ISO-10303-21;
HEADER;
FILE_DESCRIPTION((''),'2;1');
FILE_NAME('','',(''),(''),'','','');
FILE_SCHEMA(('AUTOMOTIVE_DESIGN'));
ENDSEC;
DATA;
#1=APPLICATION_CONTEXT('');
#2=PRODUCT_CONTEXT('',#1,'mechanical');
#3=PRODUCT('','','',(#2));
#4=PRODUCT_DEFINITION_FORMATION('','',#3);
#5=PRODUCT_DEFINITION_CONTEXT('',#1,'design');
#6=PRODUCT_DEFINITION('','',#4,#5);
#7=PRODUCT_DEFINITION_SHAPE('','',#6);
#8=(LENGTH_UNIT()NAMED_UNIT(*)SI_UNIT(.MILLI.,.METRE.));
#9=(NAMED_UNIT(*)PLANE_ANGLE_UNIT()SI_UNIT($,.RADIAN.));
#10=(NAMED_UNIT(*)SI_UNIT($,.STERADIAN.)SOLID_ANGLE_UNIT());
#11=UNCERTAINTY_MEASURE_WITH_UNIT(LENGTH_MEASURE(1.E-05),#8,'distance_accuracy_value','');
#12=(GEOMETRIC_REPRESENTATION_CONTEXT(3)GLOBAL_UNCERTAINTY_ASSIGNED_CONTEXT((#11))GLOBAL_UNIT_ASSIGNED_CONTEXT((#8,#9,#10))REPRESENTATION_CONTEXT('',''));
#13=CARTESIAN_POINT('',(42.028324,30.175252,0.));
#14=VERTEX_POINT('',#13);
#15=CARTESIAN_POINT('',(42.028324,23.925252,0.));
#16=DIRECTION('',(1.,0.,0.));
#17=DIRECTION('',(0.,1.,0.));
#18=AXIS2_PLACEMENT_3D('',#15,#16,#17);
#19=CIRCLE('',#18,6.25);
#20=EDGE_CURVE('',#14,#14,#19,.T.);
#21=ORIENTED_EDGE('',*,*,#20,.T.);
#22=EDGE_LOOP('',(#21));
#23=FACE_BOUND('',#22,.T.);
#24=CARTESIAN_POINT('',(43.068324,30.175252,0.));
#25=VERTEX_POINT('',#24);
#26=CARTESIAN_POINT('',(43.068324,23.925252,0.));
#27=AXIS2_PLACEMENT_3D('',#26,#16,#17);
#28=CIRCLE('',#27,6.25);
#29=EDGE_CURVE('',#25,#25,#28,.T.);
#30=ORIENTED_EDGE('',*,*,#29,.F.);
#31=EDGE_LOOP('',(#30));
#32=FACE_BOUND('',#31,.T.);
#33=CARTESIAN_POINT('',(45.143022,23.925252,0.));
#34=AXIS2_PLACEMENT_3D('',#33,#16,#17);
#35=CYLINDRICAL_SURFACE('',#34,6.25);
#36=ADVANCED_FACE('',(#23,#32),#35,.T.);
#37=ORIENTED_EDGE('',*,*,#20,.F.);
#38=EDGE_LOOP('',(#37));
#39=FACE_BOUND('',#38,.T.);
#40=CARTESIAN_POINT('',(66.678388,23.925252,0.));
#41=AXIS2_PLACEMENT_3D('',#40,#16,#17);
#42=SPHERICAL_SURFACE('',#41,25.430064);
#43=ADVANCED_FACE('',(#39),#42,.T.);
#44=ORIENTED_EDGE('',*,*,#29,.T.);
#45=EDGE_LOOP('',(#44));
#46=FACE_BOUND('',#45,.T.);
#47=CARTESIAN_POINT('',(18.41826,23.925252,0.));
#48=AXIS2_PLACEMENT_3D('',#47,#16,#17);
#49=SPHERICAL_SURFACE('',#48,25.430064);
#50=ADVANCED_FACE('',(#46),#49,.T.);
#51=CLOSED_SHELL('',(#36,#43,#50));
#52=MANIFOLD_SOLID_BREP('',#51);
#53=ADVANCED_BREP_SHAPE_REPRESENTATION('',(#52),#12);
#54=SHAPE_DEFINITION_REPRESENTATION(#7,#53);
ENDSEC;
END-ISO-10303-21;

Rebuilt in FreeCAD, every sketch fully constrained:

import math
import FreeCAD as App
import Part
import Sketcher

doc = App.newDocument("Part")
body = doc.addObject("PartDesign::Body", "Body")

# Sketch on XY plane
sketch1 = body.newObject("Sketcher::SketchObject", "Sketch")
sketch1.AttachmentSupport = (doc.getObject("XY_Plane"), [""])
sketch1.MapMode = "FlatFace"
sketch1.addGeometry(Part.LineSegment(App.Vector(42, 17.7, 0), App.Vector(43.1, 17.7, 0)), False)
sketch1.addGeometry(Part.ArcOfCircle(Part.Circle(App.Vector(18.4, 23.9, 0), App.Vector(0, 0, 1), 25.4), math.radians(-14.23), math.radians(0)), False)
sketch1.addGeometry(Part.LineSegment(App.Vector(43.8, 23.9, 0), App.Vector(41.2, 23.9, 0)), False)
sketch1.addGeometry(Part.ArcOfCircle(Part.Circle(App.Vector(66.7, 23.9, 0), App.Vector(0, 0, 1), 25.4), math.radians(180), math.radians(194.23)), False)
sketch1.addGeometry(Part.LineSegment(App.Vector(66.7, 23.9, 0), App.Vector(18.4, 23.9, 0)), True)  # axis
sketch1.addConstraint(Sketcher.Constraint("Coincident", 0, 2, 1, 1))
sketch1.addConstraint(Sketcher.Constraint("Coincident", 1, 2, 2, 1))
sketch1.addConstraint(Sketcher.Constraint("Coincident", 2, 2, 3, 1))
sketch1.addConstraint(Sketcher.Constraint("Coincident", 3, 2, 0, 1))
sketch1.addConstraint(Sketcher.Constraint("Horizontal", 0))
sketch1.addConstraint(Sketcher.Constraint("Horizontal", 2))
sketch1.addConstraint(Sketcher.Constraint("Horizontal", 4))
sketch1.addConstraint(Sketcher.Constraint("Coincident", 4, 1, 3, 3))
sketch1.addConstraint(Sketcher.Constraint("Coincident", 4, 2, 1, 3))
sketch1.addConstraint(Sketcher.Constraint("Equal", 1, 3))
sketch1.addConstraint(Sketcher.Constraint("Horizontal", 3, 3, 1, 2))
sketch1.addConstraint(Sketcher.Constraint("DistanceX", 2, 2, 2, 1, 2.6))
sketch1.addConstraint(Sketcher.Constraint("DistanceX", 0, 1, 0, 2, 1.04))
sketch1.addConstraint(Sketcher.Constraint("DistanceY", 0, 2, 3, 3, 6.25))
sketch1.addConstraint(Sketcher.Constraint("DistanceX", -1, 1, 1, 3, 18.41826))
sketch1.addConstraint(Sketcher.Constraint("DistanceY", -1, 1, 1, 3, 23.925252))
revolution = body.newObject("PartDesign::Revolution", "Revolution")
revolution.Profile = sketch1
revolution.ReferenceAxis = (sketch1, ["Axis0"])
revolution.Angle = 360

doc.recompute()
